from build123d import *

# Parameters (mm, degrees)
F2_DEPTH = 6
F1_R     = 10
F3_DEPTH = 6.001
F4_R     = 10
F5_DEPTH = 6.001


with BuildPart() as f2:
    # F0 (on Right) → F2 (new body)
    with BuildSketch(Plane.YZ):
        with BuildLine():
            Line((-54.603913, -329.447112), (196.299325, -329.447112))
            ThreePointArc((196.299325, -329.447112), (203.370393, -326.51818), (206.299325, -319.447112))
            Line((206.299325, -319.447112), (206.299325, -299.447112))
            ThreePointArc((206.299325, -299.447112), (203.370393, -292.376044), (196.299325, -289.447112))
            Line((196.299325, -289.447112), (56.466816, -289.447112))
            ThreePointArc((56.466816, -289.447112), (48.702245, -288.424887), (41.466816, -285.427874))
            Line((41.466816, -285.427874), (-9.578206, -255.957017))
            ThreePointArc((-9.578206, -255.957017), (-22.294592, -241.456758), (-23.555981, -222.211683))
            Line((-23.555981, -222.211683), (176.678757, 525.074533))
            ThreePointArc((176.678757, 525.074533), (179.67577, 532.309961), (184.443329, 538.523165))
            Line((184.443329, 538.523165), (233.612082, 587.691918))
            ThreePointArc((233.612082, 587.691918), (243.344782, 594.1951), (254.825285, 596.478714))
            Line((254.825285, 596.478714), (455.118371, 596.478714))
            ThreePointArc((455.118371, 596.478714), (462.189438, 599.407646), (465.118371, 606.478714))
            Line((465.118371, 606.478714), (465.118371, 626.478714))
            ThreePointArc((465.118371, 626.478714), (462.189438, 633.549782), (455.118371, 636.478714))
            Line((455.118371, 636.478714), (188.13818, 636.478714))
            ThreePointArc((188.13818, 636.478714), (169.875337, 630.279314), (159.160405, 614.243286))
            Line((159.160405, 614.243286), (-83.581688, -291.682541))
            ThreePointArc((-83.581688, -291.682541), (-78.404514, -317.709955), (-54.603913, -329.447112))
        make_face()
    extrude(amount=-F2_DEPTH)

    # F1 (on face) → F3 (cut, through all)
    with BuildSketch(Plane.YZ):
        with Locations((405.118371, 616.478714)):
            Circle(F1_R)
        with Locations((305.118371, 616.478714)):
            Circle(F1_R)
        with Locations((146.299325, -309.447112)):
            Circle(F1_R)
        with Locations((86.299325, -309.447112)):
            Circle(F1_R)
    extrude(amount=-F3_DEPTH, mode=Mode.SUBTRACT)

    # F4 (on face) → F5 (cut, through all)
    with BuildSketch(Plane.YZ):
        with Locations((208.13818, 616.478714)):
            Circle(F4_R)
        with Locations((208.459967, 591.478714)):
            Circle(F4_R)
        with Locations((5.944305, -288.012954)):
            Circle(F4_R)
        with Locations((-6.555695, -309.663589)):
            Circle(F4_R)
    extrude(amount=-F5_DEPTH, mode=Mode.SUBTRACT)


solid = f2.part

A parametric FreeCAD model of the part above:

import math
import FreeCAD as App
import Part
import Sketcher
Q = App.Units.Quantity

doc = App.newDocument("Part")
body = doc.addObject("PartDesign::Body", "Body")

# Sketch on YZ plane
sketch1 = body.newObject("Sketcher::SketchObject", "Sketch")
sketch1.AttachmentSupport = (doc.getObject("YZ_Plane"), [""])
sketch1.MapMode = "FlatFace"
sketch1.addGeometry([
    Part.LineSegment(App.Vector(-54.603913, -329.447112, 0), App.Vector(196.299325, -329.447112, 0)),  # 0
    Part.ArcOfCircle(Part.Circle(App.Vector(196.299326, -319.447113, 0), App.Vector(0, 0, 1), 9.999999), math.radians(-90.000004), math.radians(0.000004)),  # 1
    Part.LineSegment(App.Vector(206.299325, -319.447112, 0), App.Vector(206.299325, -299.447112, 0)),  # 2
    Part.ArcOfCircle(Part.Circle(App.Vector(196.299326, -299.447111, 0), App.Vector(0, 0, 1), 9.999999), math.radians(-0.000004), math.radians(90.000004)),  # 3
    Part.LineSegment(App.Vector(196.299325, -289.447112, 0), App.Vector(56.466816, -289.447112, 0)),  # 4
    Part.ArcOfCircle(Part.Circle(App.Vector(56.466815, -259.447117, 0), App.Vector(0, 0, 1), 29.999995), math.radians(-120.000003), math.radians(-89.999998)),  # 5
    Part.LineSegment(App.Vector(41.466816, -285.427874, 0), App.Vector(-9.578206, -255.957017, 0)),  # 6
    Part.ArcOfCircle(Part.Circle(App.Vector(5.421794, -229.976254, 0), App.Vector(0, 0, 1), 30.000001), math.radians(165), math.radians(240)),  # 7
    Part.LineSegment(App.Vector(-23.555981, -222.211683, 0), App.Vector(176.678757, 525.074533, 0)),  # 8
    Part.ArcOfCircle(Part.Circle(App.Vector(205.65654, 517.309956, 0), App.Vector(0, 0, 1), 30.00001), math.radians(135.000002), math.radians(164.999993)),  # 9
    Part.LineSegment(App.Vector(184.443329, 538.523165, 0), App.Vector(233.612082, 587.691918, 0)),  # 10
    Part.ArcOfCircle(Part.Circle(App.Vector(254.825285, 566.478714, 0), App.Vector(0, 0, 1), 30), math.radians(90), math.radians(134.999998)),  # 11
    Part.LineSegment(App.Vector(254.825285, 596.478714, 0), App.Vector(455.118371, 596.478714, 0)),  # 12
    Part.ArcOfCircle(Part.Circle(App.Vector(455.11837, 606.478715, 0), App.Vector(0, 0, 1), 10.000001), math.radians(-89.999994), math.radians(-0.000006)),  # 13
    Part.LineSegment(App.Vector(465.118371, 606.478714, 0), App.Vector(465.118371, 626.478714, 0)),  # 14
    Part.ArcOfCircle(Part.Circle(App.Vector(455.11837, 626.478713, 0), App.Vector(0, 0, 1), 10.000001), math.radians(0.000006), math.radians(89.999994)),  # 15
    Part.LineSegment(App.Vector(455.118371, 636.478714, 0), App.Vector(188.13818, 636.478714, 0)),  # 16
    Part.ArcOfCircle(Part.Circle(App.Vector(188.138181, 606.478713, 0), App.Vector(0, 0, 1), 30.000001), math.radians(90.000001), math.radians(164.999997)),  # 17
    Part.LineSegment(App.Vector(159.160405, 614.243286, 0), App.Vector(-83.581688, -291.682541, 0)),  # 18
    Part.ArcOfCircle(Part.Circle(App.Vector(-54.603914, -299.447113, 0), App.Vector(0, 0, 1), 29.999999), math.radians(164.999998), math.radians(270.000003)),  # 19
], False)
sketch1.addConstraint([
    Sketcher.Constraint("Coincident", 0, 2, 1, 1),
    Sketcher.Constraint("Coincident", 1, 2, 2, 1),
    Sketcher.Constraint("Coincident", 2, 2, 3, 1),
    Sketcher.Constraint("Coincident", 3, 2, 4, 1),
    Sketcher.Constraint("Coincident", 4, 2, 5, 2),
    Sketcher.Constraint("Coincident", 5, 1, 6, 1),
    Sketcher.Constraint("Coincident", 6, 2, 7, 2),
    Sketcher.Constraint("Coincident", 7, 1, 8, 1),
    Sketcher.Constraint("Coincident", 8, 2, 9, 2),
    Sketcher.Constraint("Coincident", 9, 1, 10, 1),
    Sketcher.Constraint("Coincident", 10, 2, 11, 2),
    Sketcher.Constraint("Coincident", 11, 1, 12, 1),
    Sketcher.Constraint("Coincident", 12, 2, 13, 1),
    Sketcher.Constraint("Coincident", 13, 2, 14, 1),
    Sketcher.Constraint("Coincident", 14, 2, 15, 1),
    Sketcher.Constraint("Coincident", 15, 2, 16, 1),
    Sketcher.Constraint("Coincident", 16, 2, 17, 1),
    Sketcher.Constraint("Coincident", 17, 2, 18, 1),
    Sketcher.Constraint("Coincident", 18, 2, 19, 1),
    Sketcher.Constraint("Coincident", 19, 2, 0, 1),
    Sketcher.Constraint("Horizontal", 0),
    Sketcher.Constraint("Vertical", 2),
    Sketcher.Constraint("Horizontal", 4),
    Sketcher.Constraint("Horizontal", 12),
    Sketcher.Constraint("Vertical", 14),
    Sketcher.Constraint("Horizontal", 16),
    Sketcher.Constraint("Radius", 1, Q("9.999999 mm")),
    Sketcher.Constraint("Radius", 3, Q("9.999999 mm")),
    Sketcher.Constraint("Radius", 7, Q("30.000001 mm")),
    Sketcher.Constraint("Radius", 11, Q("30 mm")),
    Sketcher.Constraint("Radius", 13, Q("10.000001 mm")),
    Sketcher.Constraint("Radius", 15, Q("10.000001 mm")),
    Sketcher.Constraint("Radius", 17, Q("30.000001 mm")),
    Sketcher.Constraint("Radius", 19, Q("29.999999 mm")),
    Sketcher.Constraint("DistanceY", 2, 1, 2, 2, Q("20 mm")),
    Sketcher.Constraint("DistanceY", 14, 1, 14, 2, Q("20 mm")),
    Sketcher.Constraint("DistanceY", 1, 3, 3, 3, Q("20.000001 mm")),
    Sketcher.Constraint("DistanceY", 11, 3, 15, 3, Q("59.999999 mm")),
    Sketcher.Constraint("DistanceX", 0, 2, 1, 2, Q("10 mm")),
    Sketcher.Constraint("DistanceY", 0, 2, 1, 2, Q("10 mm")),
    Sketcher.Constraint("DistanceX", 3, 2, 2, 2, Q("10 mm")),
    Sketcher.Constraint("DistanceX", 5, 1, 4, 2, Q("15 mm")),
    Sketcher.Constraint("DistanceX", 5, 1, 5, 3, Q("14.999999 mm")),
    Sketcher.Constraint("DistanceX", 6, 2, 7, 3, Q("15 mm")),
    Sketcher.Constraint("DistanceX", 12, 2, 13, 2, Q("10 mm")),
    Sketcher.Constraint("DistanceY", 12, 2, 13, 2, Q("10 mm")),
    Sketcher.Constraint("DistanceX", 15, 2, 14, 2, Q("10 mm")),
    Sketcher.Constraint("Radius", 9, Q("30.00001 mm")),
    Sketcher.Constraint("Radius", 5, Q("29.999995 mm")),
    Sketcher.Constraint("DistanceX", 0, 1, 0, 2, Q("250.903238 mm")),
    Sketcher.Constraint("DistanceX", 4, 2, 4, 1, Q("139.832509 mm")),
    Sketcher.Constraint("DistanceX", 16, 2, 16, 1, Q("266.980191 mm")),
    Sketcher.Constraint("DistanceY", 5, 3, 6, 2, Q("3.4901 mm")),
    Sketcher.Constraint("DistanceX", 17, 3, 10, 2, Q("45.473901 mm")),
    Sketcher.Constraint("DistanceX", 16, 2, 10, 2, Q("45.473902 mm")),
    Sketcher.Constraint("Distance", 8, Q("773.647619 mm")),
    Sketcher.Constraint("Distance", 18, Q("937.88343 mm")),
    Sketcher.Constraint("DistanceX", 12, 1, 12, 2, Q("200.293086 mm")),
    Sketcher.Constraint("DistanceY", 3, 3, -1, 1, Q("299.447111 mm")),
    Sketcher.Constraint("DistanceX", -1, 1, 9, 3, Q("205.65654 mm")),
    Sketcher.Constraint("DistanceX", -1, 1, 13, 3, Q("455.11837 mm")),
    Sketcher.Constraint("DistanceX", 7, 1, -1, 1, Q("23.555981 mm")),
    Sketcher.Constraint("DistanceX", -1, 1, 9, 1, Q("184.443329 mm")),
    Sketcher.Constraint("DistanceY", -1, 1, 10, 2, Q("587.691918 mm")),
    Sketcher.Constraint("DistanceX", 18, 2, -1, 1, Q("83.581688 mm")),
    Sketcher.Constraint("DistanceY", 18, 2, -1, 1, Q("291.682541 mm")),
    Sketcher.Constraint("DistanceX", 7, 3, 5, 3, Q("51.045021 mm")),
    Sketcher.Constraint("DistanceY", 7, 3, 9, 3, Q("747.28621 mm")),
    Sketcher.Constraint("DistanceY", 9, 3, 11, 3, Q("49.168758 mm")),
    Sketcher.Constraint("DistanceX", 7, 3, 11, 3, Q("249.403491 mm")),
])
pad1 = body.newObject("PartDesign::Pad", "Pad")
pad1.Profile = sketch1
pad1.Length = 6
pad1.Reversed = True

# Sketch on YZ plane
sketch2 = body.newObject("Sketcher::SketchObject", "Sketch001")
sketch2.AttachmentSupport = (doc.getObject("YZ_Plane"), [""])
sketch2.MapMode = "FlatFace"
sketch2.addGeometry([
    Part.Circle(App.Vector(405, 616, 0), App.Vector(0, 0, 1), 10),
    Part.Circle(App.Vector(305, 616, 0), App.Vector(0, 0, 1), 10),
    Part.Circle(App.Vector(146, -309, 0), App.Vector(0, 0, 1), 10),
    Part.Circle(App.Vector(86, -309, 0), App.Vector(0, 0, 1), 10),
], False)
sketch2.addConstraint([
    Sketcher.Constraint("Equal", 0, 1),
    Sketcher.Constraint("Equal", 1, 2),
    Sketcher.Constraint("Equal", 2, 3),
    Sketcher.Constraint("Horizontal", 0, 3, 1, 3),
    Sketcher.Constraint("Horizontal", 2, 3, 3, 3),
    Sketcher.Constraint("Diameter", 0, Q("20 mm")),
    Sketcher.Constraint("DistanceX", 1, 3, 0, 3, Q("100 mm")),
    Sketcher.Constraint("DistanceX", 3, 3, 2, 3, Q("60 mm")),
    Sketcher.Constraint("DistanceX", -1, 1, 0, 3, Q("405.118371 mm")),
    Sketcher.Constraint("DistanceY", 2, 3, -1, 1, Q("309.447112 mm")),
    Sketcher.Constraint("DistanceY", -1, 1, 0, 3, Q("616.478714 mm")),
    Sketcher.Constraint("DistanceX", -1, 1, 2, 3, Q("146.299325 mm")),
])
pocket1 = body.newObject("PartDesign::Pocket", "Pocket")
pocket1.Profile = sketch2
pocket1.Type = "ThroughAll"

# Sketch on YZ plane
sketch3 = body.newObject("Sketcher::SketchObject", "Sketch002")
sketch3.AttachmentSupport = (doc.getObject("YZ_Plane"), [""])
sketch3.MapMode = "FlatFace"
sketch3.addGeometry([
    Part.Circle(App.Vector(208, 616, 0), App.Vector(0, 0, 1), 10),
    Part.Circle(App.Vector(208, 591, 0), App.Vector(0, 0, 1), 10),
    Part.Circle(App.Vector(6, -288, 0), App.Vector(0, 0, 1), 10),
    Part.Circle(App.Vector(-7, -310, 0), App.Vector(0, 0, 1), 10),
], False)
sketch3.addConstraint([
    Sketcher.Constraint("Equal", 0, 1),
    Sketcher.Constraint("Equal", 1, 2),
    Sketcher.Constraint("Equal", 2, 3),
    Sketcher.Constraint("Diameter", 0, Q("20 mm")),
    Sketcher.Constraint("DistanceY", 1, 3, 0, 3, Q("25 mm")),
    Sketcher.Constraint("DistanceX", 3, 3, 2, 3, Q("12.5 mm")),
    Sketcher.Constraint("DistanceX", -1, 1, 0, 3, Q("208.13818 mm")),
    Sketcher.Constraint("DistanceY", 3, 3, -1, 1, Q("309.663589 mm")),
    Sketcher.Constraint("DistanceY", -1, 1, 0, 3, Q("616.478714 mm")),
    Sketcher.Constraint("DistanceX", -1, 1, 1, 3, Q("208.459967 mm")),
    Sketcher.Constraint("DistanceX", -1, 1, 2, 3, Q("5.944305 mm")),
    Sketcher.Constraint("DistanceY", 2, 3, -1, 1, Q("288.012954 mm")),
])
pocket2 = body.newObject("PartDesign::Pocket", "Pocket001")
pocket2.Profile = sketch3
pocket2.Type = "ThroughAll"

doc.recompute()
